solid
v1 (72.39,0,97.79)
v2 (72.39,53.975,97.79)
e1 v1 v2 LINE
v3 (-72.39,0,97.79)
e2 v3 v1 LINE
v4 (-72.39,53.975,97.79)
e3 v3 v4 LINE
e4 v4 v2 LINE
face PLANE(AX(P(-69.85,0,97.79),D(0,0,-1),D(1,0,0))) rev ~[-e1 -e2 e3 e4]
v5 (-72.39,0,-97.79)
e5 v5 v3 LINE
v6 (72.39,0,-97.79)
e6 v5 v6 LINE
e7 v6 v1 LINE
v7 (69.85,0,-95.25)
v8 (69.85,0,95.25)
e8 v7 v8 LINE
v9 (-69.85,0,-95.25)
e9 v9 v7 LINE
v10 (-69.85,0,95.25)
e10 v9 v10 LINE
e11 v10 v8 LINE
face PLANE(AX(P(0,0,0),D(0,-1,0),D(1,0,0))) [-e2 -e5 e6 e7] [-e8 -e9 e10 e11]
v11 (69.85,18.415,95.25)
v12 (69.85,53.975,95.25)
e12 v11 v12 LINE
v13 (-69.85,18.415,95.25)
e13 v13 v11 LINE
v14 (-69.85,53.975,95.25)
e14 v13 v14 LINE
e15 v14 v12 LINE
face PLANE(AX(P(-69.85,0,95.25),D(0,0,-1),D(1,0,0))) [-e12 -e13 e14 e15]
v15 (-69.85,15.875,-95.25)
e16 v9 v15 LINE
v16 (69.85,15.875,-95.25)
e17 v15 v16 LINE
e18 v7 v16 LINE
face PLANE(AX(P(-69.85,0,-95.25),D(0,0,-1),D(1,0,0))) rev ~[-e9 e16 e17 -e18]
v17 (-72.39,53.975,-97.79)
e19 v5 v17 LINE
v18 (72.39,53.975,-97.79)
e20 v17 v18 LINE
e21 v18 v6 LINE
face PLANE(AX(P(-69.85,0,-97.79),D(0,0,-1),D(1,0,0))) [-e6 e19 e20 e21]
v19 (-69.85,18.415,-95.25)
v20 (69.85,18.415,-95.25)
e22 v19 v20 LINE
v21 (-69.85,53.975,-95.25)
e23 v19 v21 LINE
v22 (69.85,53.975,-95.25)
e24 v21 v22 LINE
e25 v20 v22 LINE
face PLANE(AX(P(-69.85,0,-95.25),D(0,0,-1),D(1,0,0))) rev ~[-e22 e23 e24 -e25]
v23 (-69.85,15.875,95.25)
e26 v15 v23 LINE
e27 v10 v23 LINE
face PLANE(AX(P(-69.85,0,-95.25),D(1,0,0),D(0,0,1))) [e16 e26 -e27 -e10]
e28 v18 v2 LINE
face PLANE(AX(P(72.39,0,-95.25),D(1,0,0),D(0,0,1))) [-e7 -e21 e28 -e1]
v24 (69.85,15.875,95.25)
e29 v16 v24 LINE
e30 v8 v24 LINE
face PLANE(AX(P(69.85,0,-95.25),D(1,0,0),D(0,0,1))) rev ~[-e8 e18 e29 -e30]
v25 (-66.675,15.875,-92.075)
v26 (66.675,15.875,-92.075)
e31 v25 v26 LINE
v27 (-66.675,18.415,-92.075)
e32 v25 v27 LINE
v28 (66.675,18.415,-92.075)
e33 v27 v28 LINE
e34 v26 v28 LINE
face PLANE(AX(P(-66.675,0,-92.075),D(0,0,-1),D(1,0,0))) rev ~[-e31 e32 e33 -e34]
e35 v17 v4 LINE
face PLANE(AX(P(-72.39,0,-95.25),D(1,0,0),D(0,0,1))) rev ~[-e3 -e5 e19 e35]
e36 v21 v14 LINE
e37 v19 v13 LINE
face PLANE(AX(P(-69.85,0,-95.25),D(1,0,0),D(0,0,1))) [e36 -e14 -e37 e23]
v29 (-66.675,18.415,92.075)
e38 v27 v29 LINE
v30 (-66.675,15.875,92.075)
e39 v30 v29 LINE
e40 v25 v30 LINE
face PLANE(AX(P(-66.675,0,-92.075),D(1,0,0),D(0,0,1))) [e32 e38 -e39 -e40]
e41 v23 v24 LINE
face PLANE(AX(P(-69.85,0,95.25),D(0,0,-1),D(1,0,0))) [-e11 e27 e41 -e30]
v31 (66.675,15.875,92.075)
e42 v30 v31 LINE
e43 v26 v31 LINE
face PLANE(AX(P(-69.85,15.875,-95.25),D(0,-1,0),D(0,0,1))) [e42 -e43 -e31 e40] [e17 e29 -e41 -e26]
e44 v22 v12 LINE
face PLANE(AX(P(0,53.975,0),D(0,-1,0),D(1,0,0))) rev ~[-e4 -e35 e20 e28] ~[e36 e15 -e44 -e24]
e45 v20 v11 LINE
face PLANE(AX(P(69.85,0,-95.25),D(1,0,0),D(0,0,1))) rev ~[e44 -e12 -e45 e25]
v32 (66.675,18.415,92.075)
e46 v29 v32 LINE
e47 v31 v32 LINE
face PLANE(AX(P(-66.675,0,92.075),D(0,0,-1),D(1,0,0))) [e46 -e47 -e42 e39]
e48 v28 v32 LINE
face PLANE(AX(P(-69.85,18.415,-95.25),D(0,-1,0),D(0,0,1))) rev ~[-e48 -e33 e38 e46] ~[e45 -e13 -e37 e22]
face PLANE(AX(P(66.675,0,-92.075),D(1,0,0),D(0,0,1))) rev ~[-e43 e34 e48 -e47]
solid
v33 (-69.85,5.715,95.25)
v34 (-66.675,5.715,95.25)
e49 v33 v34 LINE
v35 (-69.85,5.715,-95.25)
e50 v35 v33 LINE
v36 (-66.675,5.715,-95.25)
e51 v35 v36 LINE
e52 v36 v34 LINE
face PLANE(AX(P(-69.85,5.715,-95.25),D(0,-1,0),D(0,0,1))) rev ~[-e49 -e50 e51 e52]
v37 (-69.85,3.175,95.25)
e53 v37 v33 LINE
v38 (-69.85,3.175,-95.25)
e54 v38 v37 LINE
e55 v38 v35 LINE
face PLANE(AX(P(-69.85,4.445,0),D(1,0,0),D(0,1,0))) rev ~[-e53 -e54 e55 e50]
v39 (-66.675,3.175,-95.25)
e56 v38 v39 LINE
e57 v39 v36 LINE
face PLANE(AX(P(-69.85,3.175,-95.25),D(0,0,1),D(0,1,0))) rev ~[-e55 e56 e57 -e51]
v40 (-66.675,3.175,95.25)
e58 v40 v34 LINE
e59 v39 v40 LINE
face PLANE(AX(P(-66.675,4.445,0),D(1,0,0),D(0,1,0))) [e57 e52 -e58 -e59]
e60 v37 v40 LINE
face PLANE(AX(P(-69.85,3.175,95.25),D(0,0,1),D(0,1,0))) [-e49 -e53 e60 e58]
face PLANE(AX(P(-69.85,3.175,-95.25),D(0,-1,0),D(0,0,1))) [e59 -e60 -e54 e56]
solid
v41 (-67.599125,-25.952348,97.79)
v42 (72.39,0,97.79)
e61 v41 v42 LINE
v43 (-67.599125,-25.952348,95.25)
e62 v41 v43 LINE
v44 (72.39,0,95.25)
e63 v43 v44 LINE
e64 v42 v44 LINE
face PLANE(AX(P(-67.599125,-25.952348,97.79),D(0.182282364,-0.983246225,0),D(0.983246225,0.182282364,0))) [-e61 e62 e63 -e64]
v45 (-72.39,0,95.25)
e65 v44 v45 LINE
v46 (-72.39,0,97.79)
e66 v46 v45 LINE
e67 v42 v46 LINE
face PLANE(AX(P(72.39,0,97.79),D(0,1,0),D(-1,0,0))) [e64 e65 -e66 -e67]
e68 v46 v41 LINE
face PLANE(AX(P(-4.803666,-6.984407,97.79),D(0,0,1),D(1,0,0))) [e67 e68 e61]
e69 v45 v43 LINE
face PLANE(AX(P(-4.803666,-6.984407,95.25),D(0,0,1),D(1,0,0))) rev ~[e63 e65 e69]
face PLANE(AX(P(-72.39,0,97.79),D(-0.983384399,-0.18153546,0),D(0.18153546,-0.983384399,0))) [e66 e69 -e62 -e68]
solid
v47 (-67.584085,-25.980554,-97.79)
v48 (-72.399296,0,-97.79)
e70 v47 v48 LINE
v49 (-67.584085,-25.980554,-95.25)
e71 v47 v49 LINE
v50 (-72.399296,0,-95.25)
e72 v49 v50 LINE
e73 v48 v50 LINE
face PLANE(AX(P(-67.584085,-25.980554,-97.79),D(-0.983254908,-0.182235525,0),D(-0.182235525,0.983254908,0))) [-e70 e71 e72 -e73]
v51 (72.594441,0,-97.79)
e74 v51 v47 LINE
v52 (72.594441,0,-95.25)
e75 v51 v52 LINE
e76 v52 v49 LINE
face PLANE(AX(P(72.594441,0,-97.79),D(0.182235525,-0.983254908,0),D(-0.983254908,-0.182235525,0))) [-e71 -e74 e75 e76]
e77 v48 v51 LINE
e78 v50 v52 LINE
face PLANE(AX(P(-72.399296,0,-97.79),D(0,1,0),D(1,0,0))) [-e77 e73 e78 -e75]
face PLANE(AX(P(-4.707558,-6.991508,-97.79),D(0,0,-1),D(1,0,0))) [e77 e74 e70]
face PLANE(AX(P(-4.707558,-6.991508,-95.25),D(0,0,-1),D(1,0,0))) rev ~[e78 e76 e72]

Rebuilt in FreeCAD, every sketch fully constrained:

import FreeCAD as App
import Part
import Sketcher

V = App.Vector
Q = App.Units.Quantity


def faces_at(feature, points):
    """Names of the faces that lie closest to the given points."""
    faces = feature.Shape.Faces
    near = lambda p: min(range(len(faces)), key=lambda i: faces[i].distToShape(Part.Vertex(*p))[0])
    return sorted({f"Face{near(p) + 1}" for p in points})


def add_polygon(sketch, points):
    """Adds a closed chain of lines whose ends are joined by coincident constraints."""
    first, n = sketch.GeometryCount, len(points)
    for a, b in zip(points, points[1:] + points[:1]):
        sketch.addGeometry(Part.LineSegment(App.Vector(*a, 0), App.Vector(*b, 0)), False)
    for i in range(n):
        sketch.addConstraint(Sketcher.Constraint("Coincident", first + i, 2, first + (i + 1) % n, 1))

doc = App.newDocument("Part")
params = doc.addObject("Spreadsheet::Sheet", "Params")
for row, (alias, value) in enumerate([
    ("sketch1_width", "5.5 in"),
    ("sketch1_height", "7.5 in"),
    ("pad1_length", "2.125 in"),
    ("thickness_wall", "0.1 in"),
    ("sketch2_width", "0.1 in"),
    ("sketch2_height", "7.5 in"),
    ("sketch3_width", "5.25 in"),
    ("sketch3_height", "7.25 in"),
    ("pocket1_length", "3 in"),
    ("sketch4_width", "0.1 in"),
    ("sketch4_height", "7.5 in"),
    ("pad3_length", "0.125 in"),
    ("pad4_length", "0.1 in"),
    ("sketch6_width", "5.7 in"),
    ("pad5_length", "0.1 in"),
], start=1):
    params.set(f"A{row}", alias)
    params.set(f"B{row}", "=" + value)
    params.setAlias(f"B{row}", alias)

body = doc.addObject("PartDesign::Body", "Body")

# Sketch on XZ plane
sketch1 = body.newObject("Sketcher::SketchObject", "Sketch")
sketch1.AttachmentSupport = (doc.getObject("XZ_Plane"), [""])
sketch1.MapMode = "FlatFace"
add_polygon(sketch1, [(-70, 95), (-70, -95), (70, -95), (70, 95)])  # lines 0-3
sketch1.addConstraint(Sketcher.Constraint("Vertical", 0))
sketch1.addConstraint(Sketcher.Constraint("Horizontal", 1))
sketch1.addConstraint(Sketcher.Constraint("Vertical", 2))
sketch1.addConstraint(Sketcher.Constraint("Horizontal", 3))
sketch1.addConstraint(Sketcher.Constraint("Symmetric", 0, 2, 2, 2, -1, 1))
sketch1.addConstraint(Sketcher.Constraint("DistanceX", 1, 1, 1, 2, Q("5.5 in")))
sketch1.addConstraint(Sketcher.Constraint("DistanceY", 0, 2, 0, 1, Q("7.5 in")))
sketch1.setExpression("Constraints[9]", "Params.sketch1_width")
sketch1.setExpression("Constraints[10]", "Params.sketch1_height")
pad1 = body.newObject("PartDesign::Pad", "Pad")
pad1.Profile = sketch1
pad1.setExpression("Length", "Params.pad1_length")
pad1.Reversed = True
doc.recompute()

thickness = body.newObject("PartDesign::Thickness", "Thickness")
thickness.Base = (pad1, faces_at(pad1, [(0, 0, 0), (0, 53.975, 0)]))
thickness.setExpression("Value", "Params.thickness_wall")
thickness.Reversed = False
thickness.Join = "Intersection"

# Sketch on YZ plane
sketch2 = body.newObject("Sketcher::SketchObject", "Sketch001")
sketch2.AttachmentSupport = (doc.getObject("YZ_Plane"), [""])
sketch2.MapMode = "FlatFace"
sketch2.AttachmentOffset = App.Placement(V(0, 0, -2.75 * 25.4), App.Rotation())
add_polygon(sketch2, [(15.9, 95.2), (15.9, -95.2), (18.4, -95.2), (18.4, 95.2)])  # lines 0-3
sketch2.addConstraint(Sketcher.Constraint("Vertical", 0))
sketch2.addConstraint(Sketcher.Constraint("Horizontal", 1))
sketch2.addConstraint(Sketcher.Constraint("Vertical", 2))
sketch2.addConstraint(Sketcher.Constraint("Horizontal", 3))
sketch2.addConstraint(Sketcher.Constraint("DistanceX", 1, 1, 1, 2, Q("0.1 in")))
sketch2.addConstraint(Sketcher.Constraint("DistanceY", 0, 2, 0, 1, Q("7.5 in")))
sketch2.addConstraint(Sketcher.Constraint("DistanceY", 0, 2, -1, 1, Q("3.75 in")))
sketch2.addConstraint(Sketcher.Constraint("DistanceX", -1, 1, 0, 2, Q("0.625 in")))
sketch2.setExpression("Constraints[8]", "Params.sketch2_width")
sketch2.setExpression("Constraints[9]", "Params.sketch2_height")
pad2 = body.newObject("PartDesign::Pad", "Pad001")
pad2.Profile = sketch2
pad2.Type = "UpToLast"

# Sketch on XZ plane
sketch3 = body.newObject("Sketcher::SketchObject", "Sketch002")
sketch3.AttachmentSupport = (doc.getObject("XZ_Plane"), [""])
sketch3.MapMode = "FlatFace"
add_polygon(sketch3, [(-67, 92), (-67, -92), (67, -92), (67, 92)])  # lines 0-3
sketch3.addConstraint(Sketcher.Constraint("Vertical", 0))
sketch3.addConstraint(Sketcher.Constraint("Horizontal", 1))
sketch3.addConstraint(Sketcher.Constraint("Vertical", 2))
sketch3.addConstraint(Sketcher.Constraint("Horizontal", 3))
sketch3.addConstraint(Sketcher.Constraint("Symmetric", 0, 2, 2, 2, -1, 1))
sketch3.addConstraint(Sketcher.Constraint("DistanceX", 1, 1, 1, 2, Q("5.25 in")))
sketch3.addConstraint(Sketcher.Constraint("DistanceY", 0, 2, 0, 1, Q("7.25 in")))
sketch3.setExpression("Constraints[9]", "Params.sketch3_width")
sketch3.setExpression("Constraints[10]", "Params.sketch3_height")
pocket1 = body.newObject("PartDesign::Pocket", "Pocket")
pocket1.Profile = sketch3
pocket1.setExpression("Length", "Params.pocket1_length")
body2 = doc.addObject("PartDesign::Body", "Body001")

# Sketch on YZ plane
sketch4 = body2.newObject("Sketcher::SketchObject", "Sketch003")
sketch4.AttachmentSupport = (doc.getObject("YZ_Plane001"), [""])
sketch4.MapMode = "FlatFace"
sketch4.AttachmentOffset = App.Placement(V(0, 0, -2.75 * 25.4), App.Rotation())
add_polygon(sketch4, [(3.2, 95.2), (3.2, -95.2), (5.7, -95.2), (5.7, 95.2)])  # lines 0-3
sketch4.addConstraint(Sketcher.Constraint("Vertical", 0))
sketch4.addConstraint(Sketcher.Constraint("Horizontal", 1))
sketch4.addConstraint(Sketcher.Constraint("Vertical", 2))
sketch4.addConstraint(Sketcher.Constraint("Horizontal", 3))
sketch4.addConstraint(Sketcher.Constraint("DistanceX", 1, 1, 1, 2, Q("0.1 in")))
sketch4.addConstraint(Sketcher.Constraint("DistanceY", 0, 2, 0, 1, Q("7.5 in")))
sketch4.addConstraint(Sketcher.Constraint("DistanceY", 0, 2, -1, 1, Q("3.75 in")))
sketch4.addConstraint(Sketcher.Constraint("DistanceX", -1, 1, 0, 2, Q("0.125 in")))
sketch4.setExpression("Constraints[8]", "Params.sketch4_width")
sketch4.setExpression("Constraints[9]", "Params.sketch4_height")
pad3 = body2.newObject("PartDesign::Pad", "Pad002")
pad3.Profile = sketch4
pad3.setExpression("Length", "Params.pad3_length")
body3 = doc.addObject("PartDesign::Body", "Body002")

# Sketch on XY plane
sketch5 = body3.newObject("Sketcher::SketchObject", "Sketch004")
sketch5.AttachmentSupport = (doc.getObject("XY_Plane002"), [""])
sketch5.MapMode = "FlatFace"
sketch5.AttachmentOffset = App.Placement(V(0, 0, -3.85 * 25.4), App.Rotation())
add_polygon(sketch5, [(-72, 0), (73, 0), (-68, -26)])  # lines 0-2
sketch5.addConstraint(Sketcher.Constraint("Horizontal", 0))
sketch5.addConstraint(Sketcher.Constraint("PointOnObject", 0, 2, -1))
sketch5.addConstraint(Sketcher.Constraint("Perpendicular", 1, 2))
sketch5.addConstraint(Sketcher.Constraint("Angle", 1, Q("-169.5 deg")))
sketch5.addConstraint(Sketcher.Constraint("Distance", 2, Q("26.42301 mm")))
sketch5.addConstraint(Sketcher.Constraint("DistanceX", -1, 1, 0, 2, Q("72.594441 mm")))
pad4 = body3.newObject("PartDesign::Pad", "Pad003")
pad4.Profile = sketch5
pad4.setExpression("Length", "Params.pad4_length")
body4 = doc.addObject("PartDesign::Body", "Body003")

# Sketch on XY plane
sketch6 = body4.newObject("Sketcher::SketchObject", "Sketch005")
sketch6.AttachmentSupport = (doc.getObject("XY_Plane003"), [""])
sketch6.MapMode = "FlatFace"
sketch6.AttachmentOffset = App.Placement(V(0, 0, 3.85 * 25.4), App.Rotation())
add_polygon(sketch6, [(-68, -26), (72, 0), (-72, 0)])  # lines 0-2
sketch6.addConstraint(Sketcher.Constraint("Horizontal", 1))
sketch6.addConstraint(Sketcher.Constraint("Symmetric", 0, 2, 1, 2, -1, 1))
sketch6.addConstraint(Sketcher.Constraint("DistanceX", 1, 2, 1, 1, Q("5.7 in")))
sketch6.addConstraint(Sketcher.Constraint("Distance", 2, Q("26.390848 mm")))
sketch6.addConstraint(Sketcher.Constraint("DistanceY", 2, 2, -1, 1, Q("25.952348 mm")))
sketch6.setExpression("Constraints[5]", "Params.sketch6_width")
pad5 = body4.newObject("PartDesign::Pad", "Pad004")
pad5.Profile = sketch6
pad5.setExpression("Length", "Params.pad5_length")
pad5.Reversed = True

doc.recompute()
